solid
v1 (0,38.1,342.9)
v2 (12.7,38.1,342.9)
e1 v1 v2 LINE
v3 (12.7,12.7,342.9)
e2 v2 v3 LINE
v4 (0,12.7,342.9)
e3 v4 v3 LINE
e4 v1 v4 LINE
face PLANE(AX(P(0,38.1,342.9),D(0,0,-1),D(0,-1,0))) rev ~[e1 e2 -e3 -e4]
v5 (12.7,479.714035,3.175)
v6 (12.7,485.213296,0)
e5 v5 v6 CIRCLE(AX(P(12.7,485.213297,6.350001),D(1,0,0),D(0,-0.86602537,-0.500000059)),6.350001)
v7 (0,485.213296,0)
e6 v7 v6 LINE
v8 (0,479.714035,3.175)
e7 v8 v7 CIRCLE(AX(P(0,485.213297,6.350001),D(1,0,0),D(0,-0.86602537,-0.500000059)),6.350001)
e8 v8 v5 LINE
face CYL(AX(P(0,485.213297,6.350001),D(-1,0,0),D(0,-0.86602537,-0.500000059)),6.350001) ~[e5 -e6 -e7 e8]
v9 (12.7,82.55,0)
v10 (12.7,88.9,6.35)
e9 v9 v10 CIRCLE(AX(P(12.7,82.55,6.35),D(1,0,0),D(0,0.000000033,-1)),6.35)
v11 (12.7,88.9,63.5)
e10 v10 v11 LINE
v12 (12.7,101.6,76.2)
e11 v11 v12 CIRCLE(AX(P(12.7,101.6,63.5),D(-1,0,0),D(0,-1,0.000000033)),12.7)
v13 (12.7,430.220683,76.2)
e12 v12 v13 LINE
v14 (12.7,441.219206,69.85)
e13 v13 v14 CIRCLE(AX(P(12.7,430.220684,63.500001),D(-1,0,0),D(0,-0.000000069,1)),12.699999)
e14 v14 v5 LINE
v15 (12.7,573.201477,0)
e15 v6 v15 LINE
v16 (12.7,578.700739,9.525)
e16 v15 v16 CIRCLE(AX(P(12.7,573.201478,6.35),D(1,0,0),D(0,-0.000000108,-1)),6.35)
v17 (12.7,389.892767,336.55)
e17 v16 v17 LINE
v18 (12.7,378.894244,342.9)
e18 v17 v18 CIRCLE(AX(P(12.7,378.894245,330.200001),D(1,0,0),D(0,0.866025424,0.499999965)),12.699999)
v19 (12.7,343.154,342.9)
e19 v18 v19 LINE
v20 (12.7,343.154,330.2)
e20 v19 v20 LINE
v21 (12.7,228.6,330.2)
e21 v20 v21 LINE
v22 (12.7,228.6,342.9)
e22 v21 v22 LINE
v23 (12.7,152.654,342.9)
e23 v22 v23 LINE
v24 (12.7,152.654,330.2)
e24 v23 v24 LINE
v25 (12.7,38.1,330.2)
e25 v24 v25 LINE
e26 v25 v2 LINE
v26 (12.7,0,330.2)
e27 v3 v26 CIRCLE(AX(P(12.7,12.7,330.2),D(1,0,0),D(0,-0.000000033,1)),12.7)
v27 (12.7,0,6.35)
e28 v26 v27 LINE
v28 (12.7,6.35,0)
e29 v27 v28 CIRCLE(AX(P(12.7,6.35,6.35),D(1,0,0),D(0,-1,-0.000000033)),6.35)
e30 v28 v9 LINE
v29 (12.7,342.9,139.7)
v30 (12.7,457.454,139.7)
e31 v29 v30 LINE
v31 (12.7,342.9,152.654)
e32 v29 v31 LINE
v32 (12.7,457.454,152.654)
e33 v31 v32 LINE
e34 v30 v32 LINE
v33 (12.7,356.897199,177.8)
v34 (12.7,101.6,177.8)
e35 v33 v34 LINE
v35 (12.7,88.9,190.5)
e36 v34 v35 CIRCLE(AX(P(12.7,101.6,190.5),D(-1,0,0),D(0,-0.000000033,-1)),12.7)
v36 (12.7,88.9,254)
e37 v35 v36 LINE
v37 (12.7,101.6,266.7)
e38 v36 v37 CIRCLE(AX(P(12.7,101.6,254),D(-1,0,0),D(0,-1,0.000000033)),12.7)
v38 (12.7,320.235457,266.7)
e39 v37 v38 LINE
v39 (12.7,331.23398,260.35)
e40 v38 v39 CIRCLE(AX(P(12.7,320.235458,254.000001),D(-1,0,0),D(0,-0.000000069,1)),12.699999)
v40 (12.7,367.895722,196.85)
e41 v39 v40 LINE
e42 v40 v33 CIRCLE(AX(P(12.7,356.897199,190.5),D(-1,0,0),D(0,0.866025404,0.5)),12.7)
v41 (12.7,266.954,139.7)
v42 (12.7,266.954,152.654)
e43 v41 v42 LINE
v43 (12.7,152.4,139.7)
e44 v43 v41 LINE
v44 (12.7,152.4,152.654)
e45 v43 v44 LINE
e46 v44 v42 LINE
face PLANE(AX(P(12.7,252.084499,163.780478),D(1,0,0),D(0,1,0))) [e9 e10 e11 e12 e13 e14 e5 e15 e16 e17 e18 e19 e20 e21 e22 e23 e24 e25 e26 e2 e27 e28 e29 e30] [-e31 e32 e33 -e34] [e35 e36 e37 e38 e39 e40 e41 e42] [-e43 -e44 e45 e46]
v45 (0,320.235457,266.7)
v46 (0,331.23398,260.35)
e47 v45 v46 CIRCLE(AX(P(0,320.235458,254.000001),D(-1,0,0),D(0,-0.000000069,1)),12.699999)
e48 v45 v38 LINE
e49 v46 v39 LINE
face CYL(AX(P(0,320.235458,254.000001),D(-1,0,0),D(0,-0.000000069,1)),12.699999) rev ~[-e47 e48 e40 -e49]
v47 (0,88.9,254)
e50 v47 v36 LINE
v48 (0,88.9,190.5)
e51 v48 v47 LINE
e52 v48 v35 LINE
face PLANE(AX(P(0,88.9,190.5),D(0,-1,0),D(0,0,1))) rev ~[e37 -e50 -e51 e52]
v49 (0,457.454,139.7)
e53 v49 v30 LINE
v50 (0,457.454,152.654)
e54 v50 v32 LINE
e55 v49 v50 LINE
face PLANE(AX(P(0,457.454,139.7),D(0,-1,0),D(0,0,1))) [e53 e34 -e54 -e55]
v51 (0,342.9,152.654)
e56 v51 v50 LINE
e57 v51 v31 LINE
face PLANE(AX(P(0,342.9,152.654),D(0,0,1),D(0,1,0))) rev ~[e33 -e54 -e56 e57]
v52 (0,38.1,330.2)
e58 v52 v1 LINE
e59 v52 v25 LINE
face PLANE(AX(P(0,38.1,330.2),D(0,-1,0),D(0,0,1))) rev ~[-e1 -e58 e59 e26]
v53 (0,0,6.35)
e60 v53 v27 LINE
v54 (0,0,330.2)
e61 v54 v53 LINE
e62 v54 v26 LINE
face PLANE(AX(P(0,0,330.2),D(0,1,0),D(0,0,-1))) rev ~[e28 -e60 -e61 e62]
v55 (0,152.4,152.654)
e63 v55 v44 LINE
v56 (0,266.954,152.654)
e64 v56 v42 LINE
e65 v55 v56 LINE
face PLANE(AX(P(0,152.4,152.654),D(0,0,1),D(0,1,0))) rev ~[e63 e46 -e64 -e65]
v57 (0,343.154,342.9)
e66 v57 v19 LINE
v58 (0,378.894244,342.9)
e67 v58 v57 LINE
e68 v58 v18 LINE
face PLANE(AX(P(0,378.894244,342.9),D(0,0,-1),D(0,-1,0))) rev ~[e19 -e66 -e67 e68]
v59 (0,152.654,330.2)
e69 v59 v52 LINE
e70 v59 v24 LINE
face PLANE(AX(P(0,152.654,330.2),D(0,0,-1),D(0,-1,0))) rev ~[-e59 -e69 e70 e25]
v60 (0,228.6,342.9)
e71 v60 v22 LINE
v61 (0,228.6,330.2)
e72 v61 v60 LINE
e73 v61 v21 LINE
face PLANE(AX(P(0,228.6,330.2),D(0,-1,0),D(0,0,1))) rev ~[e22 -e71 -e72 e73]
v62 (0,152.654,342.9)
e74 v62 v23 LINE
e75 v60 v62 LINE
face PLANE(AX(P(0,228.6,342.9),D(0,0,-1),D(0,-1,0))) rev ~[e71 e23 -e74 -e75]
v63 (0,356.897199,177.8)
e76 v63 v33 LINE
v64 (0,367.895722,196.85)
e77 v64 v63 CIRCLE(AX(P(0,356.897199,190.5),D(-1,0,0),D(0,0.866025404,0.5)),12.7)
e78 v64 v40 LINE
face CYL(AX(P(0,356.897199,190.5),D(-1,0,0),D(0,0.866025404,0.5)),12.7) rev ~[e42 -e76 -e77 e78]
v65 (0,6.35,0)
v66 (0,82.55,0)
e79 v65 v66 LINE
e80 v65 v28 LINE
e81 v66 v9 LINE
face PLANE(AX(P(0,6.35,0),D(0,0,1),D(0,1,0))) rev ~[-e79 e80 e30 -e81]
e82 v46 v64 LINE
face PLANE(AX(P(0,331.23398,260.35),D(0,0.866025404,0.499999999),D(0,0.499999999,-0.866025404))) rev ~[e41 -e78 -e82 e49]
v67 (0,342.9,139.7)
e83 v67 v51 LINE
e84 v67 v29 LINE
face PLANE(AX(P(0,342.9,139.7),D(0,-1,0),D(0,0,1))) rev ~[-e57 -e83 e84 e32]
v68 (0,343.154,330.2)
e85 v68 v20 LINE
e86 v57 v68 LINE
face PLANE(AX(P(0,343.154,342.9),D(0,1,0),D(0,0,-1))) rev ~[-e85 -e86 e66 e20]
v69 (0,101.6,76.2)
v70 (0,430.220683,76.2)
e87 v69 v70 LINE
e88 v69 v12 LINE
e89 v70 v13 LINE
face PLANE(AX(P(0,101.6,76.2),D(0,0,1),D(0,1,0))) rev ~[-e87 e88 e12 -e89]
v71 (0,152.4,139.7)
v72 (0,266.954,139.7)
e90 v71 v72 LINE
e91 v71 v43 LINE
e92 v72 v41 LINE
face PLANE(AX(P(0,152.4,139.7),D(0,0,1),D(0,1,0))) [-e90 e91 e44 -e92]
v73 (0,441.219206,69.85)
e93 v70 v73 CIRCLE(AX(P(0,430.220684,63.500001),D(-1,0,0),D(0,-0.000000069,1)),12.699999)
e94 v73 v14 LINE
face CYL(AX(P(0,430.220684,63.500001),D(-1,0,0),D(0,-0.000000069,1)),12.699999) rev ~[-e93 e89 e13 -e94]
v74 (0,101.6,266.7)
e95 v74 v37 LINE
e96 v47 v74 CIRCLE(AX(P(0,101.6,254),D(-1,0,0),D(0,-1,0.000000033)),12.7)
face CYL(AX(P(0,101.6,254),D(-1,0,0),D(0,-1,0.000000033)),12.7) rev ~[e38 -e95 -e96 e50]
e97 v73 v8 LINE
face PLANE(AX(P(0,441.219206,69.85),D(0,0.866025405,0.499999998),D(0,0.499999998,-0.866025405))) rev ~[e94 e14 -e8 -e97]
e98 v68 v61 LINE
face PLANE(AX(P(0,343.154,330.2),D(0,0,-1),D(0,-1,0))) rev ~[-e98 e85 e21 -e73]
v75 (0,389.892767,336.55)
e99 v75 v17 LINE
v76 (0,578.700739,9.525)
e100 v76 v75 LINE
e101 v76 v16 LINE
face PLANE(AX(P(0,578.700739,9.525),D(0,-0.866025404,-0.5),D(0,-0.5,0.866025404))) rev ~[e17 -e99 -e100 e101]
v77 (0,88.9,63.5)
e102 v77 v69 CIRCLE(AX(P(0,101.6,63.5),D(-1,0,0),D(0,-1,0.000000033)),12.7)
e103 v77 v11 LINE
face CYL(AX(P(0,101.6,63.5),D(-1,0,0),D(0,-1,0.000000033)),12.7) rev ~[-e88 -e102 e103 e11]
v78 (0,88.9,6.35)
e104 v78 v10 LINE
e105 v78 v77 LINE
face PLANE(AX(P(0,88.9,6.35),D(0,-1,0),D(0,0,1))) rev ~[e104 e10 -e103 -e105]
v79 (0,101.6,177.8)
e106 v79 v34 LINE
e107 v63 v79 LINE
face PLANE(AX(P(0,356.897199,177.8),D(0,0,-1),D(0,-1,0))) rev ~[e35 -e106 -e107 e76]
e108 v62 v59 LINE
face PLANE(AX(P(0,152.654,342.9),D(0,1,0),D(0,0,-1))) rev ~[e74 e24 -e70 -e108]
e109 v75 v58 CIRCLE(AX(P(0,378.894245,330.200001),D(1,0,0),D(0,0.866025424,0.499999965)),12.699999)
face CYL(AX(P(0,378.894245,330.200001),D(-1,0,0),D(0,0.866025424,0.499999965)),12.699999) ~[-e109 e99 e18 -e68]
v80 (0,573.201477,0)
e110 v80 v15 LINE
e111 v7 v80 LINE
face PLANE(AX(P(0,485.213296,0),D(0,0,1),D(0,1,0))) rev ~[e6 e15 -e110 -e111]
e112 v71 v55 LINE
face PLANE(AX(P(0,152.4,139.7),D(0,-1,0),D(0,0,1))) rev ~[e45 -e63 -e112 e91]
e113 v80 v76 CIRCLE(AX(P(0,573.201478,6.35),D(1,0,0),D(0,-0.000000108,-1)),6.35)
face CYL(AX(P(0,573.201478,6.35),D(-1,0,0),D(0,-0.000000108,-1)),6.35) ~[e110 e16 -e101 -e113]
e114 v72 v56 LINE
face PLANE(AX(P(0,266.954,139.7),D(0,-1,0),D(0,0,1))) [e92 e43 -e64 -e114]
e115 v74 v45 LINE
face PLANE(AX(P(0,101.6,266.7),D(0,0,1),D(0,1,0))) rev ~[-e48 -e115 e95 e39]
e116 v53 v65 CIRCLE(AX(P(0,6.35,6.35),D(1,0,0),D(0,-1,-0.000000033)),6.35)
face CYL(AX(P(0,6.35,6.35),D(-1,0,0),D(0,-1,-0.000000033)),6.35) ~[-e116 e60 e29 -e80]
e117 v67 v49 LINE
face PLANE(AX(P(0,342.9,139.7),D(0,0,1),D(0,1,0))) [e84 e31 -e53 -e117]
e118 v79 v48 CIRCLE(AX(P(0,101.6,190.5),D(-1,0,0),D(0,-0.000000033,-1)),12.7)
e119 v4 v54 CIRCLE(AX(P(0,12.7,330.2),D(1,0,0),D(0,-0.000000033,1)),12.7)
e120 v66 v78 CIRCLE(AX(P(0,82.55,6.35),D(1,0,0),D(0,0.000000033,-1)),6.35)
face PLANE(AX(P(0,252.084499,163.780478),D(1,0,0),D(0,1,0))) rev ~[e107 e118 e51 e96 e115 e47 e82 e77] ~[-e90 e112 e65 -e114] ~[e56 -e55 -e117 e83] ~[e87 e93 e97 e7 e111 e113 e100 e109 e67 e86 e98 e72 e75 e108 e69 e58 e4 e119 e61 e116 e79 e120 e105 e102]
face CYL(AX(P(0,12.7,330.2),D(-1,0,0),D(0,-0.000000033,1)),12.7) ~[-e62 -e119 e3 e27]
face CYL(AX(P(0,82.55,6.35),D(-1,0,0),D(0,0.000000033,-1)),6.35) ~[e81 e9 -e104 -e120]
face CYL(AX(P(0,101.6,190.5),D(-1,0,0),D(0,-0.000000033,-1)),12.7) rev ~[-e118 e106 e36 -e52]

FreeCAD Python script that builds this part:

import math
import FreeCAD as App
import Part
import Sketcher
Q = App.Units.Quantity


def add_polygon(sketch, points):
    """Adds a closed chain of lines whose ends are joined by coincident constraints."""
    first, n = sketch.GeometryCount, len(points)
    for a, b in zip(points, points[1:] + points[:1]):
        sketch.addGeometry(Part.LineSegment(App.Vector(*a, 0), App.Vector(*b, 0)), False)
    for i in range(n):
        sketch.addConstraint(Sketcher.Constraint("Coincident", first + i, 2, first + (i + 1) % n, 1))

doc = App.newDocument("Part")
body = doc.addObject("PartDesign::Body", "Body")

sketch1 = body.newObject("Sketcher::SketchObject", "Sketch")
sketch1.AttachmentSupport = (doc.getObject("YZ_Plane"), [""])
sketch1.MapMode = "FlatFace"
sketch1.addGeometry(Part.ArcOfCircle(Part.Circle(App.Vector(6, 6, 0), App.Vector(0, 0, 1), 6), math.radians(-180), math.radians(-90)), False)
sketch1.addGeometry(Part.LineSegment(App.Vector(6, 0, 0), App.Vector(83, 0, 0)), False)
sketch1.addGeometry(Part.ArcOfCircle(Part.Circle(App.Vector(83, 6, 0), App.Vector(0, 0, 1), 6), math.radians(-90), math.radians(0)), False)
sketch1.addGeometry(Part.LineSegment(App.Vector(89, 6, 0), App.Vector(89, 64, 0)), False)
sketch1.addGeometry(Part.ArcOfCircle(Part.Circle(App.Vector(102, 63, 0), App.Vector(0, 0, 1), 13), math.radians(90), math.radians(180)), False)
sketch1.addGeometry(Part.LineSegment(App.Vector(102, 76, 0), App.Vector(430, 76, 0)), False)
sketch1.addGeometry(Part.ArcOfCircle(Part.Circle(App.Vector(430, 64, 0), App.Vector(0, 0, 1), 13), math.radians(30), math.radians(90)), False)
sketch1.addGeometry(Part.LineSegment(App.Vector(441, 70, 0), App.Vector(480, 3, 0)), False)
sketch1.addGeometry(Part.ArcOfCircle(Part.Circle(App.Vector(485, 6, 0), App.Vector(0, 0, 1), 6), math.radians(-150), math.radians(-90)), False)
sketch1.addGeometry(Part.LineSegment(App.Vector(485, 0, 0), App.Vector(573, 0, 0)), False)
sketch1.addGeometry(Part.ArcOfCircle(Part.Circle(App.Vector(573, 6, 0), App.Vector(0, 0, 1), 6), math.radians(-90), math.radians(30)), False)
sketch1.addGeometry(Part.LineSegment(App.Vector(579, 10, 0), App.Vector(390, 337, 0)), False)
sketch1.addGeometry(Part.ArcOfCircle(Part.Circle(App.Vector(379, 330, 0), App.Vector(0, 0, 1), 13), math.radians(30), math.radians(90)), False)
sketch1.addGeometry(Part.LineSegment(App.Vector(379, 343, 0), App.Vector(343, 343, 0)), False)
sketch1.addGeometry(Part.LineSegment(App.Vector(343, 343, 0), App.Vector(343, 330, 0)), False)
sketch1.addGeometry(Part.LineSegment(App.Vector(343, 330, 0), App.Vector(229, 330, 0)), False)
sketch1.addGeometry(Part.LineSegment(App.Vector(229, 330, 0), App.Vector(229, 343, 0)), False)
sketch1.addGeometry(Part.LineSegment(App.Vector(229, 343, 0), App.Vector(153, 343, 0)), False)
sketch1.addGeometry(Part.LineSegment(App.Vector(153, 343, 0), App.Vector(153, 330, 0)), False)
sketch1.addGeometry(Part.LineSegment(App.Vector(153, 330, 0), App.Vector(38, 330, 0)), False)
sketch1.addGeometry(Part.LineSegment(App.Vector(38, 330, 0), App.Vector(38, 343, 0)), False)
sketch1.addGeometry(Part.LineSegment(App.Vector(38, 343, 0), App.Vector(13, 343, 0)), False)
sketch1.addGeometry(Part.ArcOfCircle(Part.Circle(App.Vector(13, 330, 0), App.Vector(0, 0, 1), 13), math.radians(90), math.radians(180)), False)
sketch1.addGeometry(Part.LineSegment(App.Vector(0, 330, 0), App.Vector(0, 6, 0)), False)
add_polygon(sketch1, [(267, 140), (152, 140), (152, 153), (267, 153)])
add_polygon(sketch1, [(457, 140), (343, 140), (343, 153), (457, 153)])
sketch1.addGeometry(Part.ArcOfCircle(Part.Circle(App.Vector(102, 191, 0), App.Vector(0, 0, 1), 13), math.radians(-180), math.radians(-90)), False)
sketch1.addGeometry(Part.LineSegment(App.Vector(89, 190, 0), App.Vector(89, 254, 0)), False)
sketch1.addGeometry(Part.ArcOfCircle(Part.Circle(App.Vector(102, 254, 0), App.Vector(0, 0, 1), 13), math.radians(90), math.radians(180)), False)
sketch1.addGeometry(Part.LineSegment(App.Vector(102, 267, 0), App.Vector(320, 267, 0)), False)
sketch1.addGeometry(Part.ArcOfCircle(Part.Circle(App.Vector(320, 254, 0), App.Vector(0, 0, 1), 13), math.radians(30), math.radians(90)), False)
sketch1.addGeometry(Part.LineSegment(App.Vector(331, 260, 0), App.Vector(368, 197, 0)), False)
sketch1.addGeometry(Part.ArcOfCircle(Part.Circle(App.Vector(357, 190, 0), App.Vector(0, 0, 1), 13), math.radians(-90), math.radians(30)), False)
sketch1.addGeometry(Part.LineSegment(App.Vector(357, 178, 0), App.Vector(102, 178, 0)), False)
sketch1.addConstraint([
    Sketcher.Constraint("Tangent", 0, 2, 1, 1),
    Sketcher.Constraint("Tangent", 1, 2, 2, 1),
    Sketcher.Constraint("Tangent", 2, 2, 3, 1),
    Sketcher.Constraint("Tangent", 3, 2, 4, 2),
    Sketcher.Constraint("Tangent", 4, 1, 5, 1),
    Sketcher.Constraint("Tangent", 5, 2, 6, 2),
    Sketcher.Constraint("Tangent", 6, 1, 7, 1),
    Sketcher.Constraint("Tangent", 7, 2, 8, 1),
    Sketcher.Constraint("Tangent", 8, 2, 9, 1),
    Sketcher.Constraint("Tangent", 9, 2, 10, 1),
    Sketcher.Constraint("Tangent", 10, 2, 11, 1),
    Sketcher.Constraint("Tangent", 11, 2, 12, 1),
    Sketcher.Constraint("Tangent", 12, 2, 13, 1),
    Sketcher.Constraint("Coincident", 13, 2, 14, 1),
    Sketcher.Constraint("Coincident", 14, 2, 15, 1),
    Sketcher.Constraint("Coincident", 15, 2, 16, 1),
    Sketcher.Constraint("Coincident", 16, 2, 17, 1),
    Sketcher.Constraint("Coincident", 17, 2, 18, 1),
    Sketcher.Constraint("Coincident", 18, 2, 19, 1),
    Sketcher.Constraint("Coincident", 19, 2, 20, 1),
    Sketcher.Constraint("Coincident", 20, 2, 21, 1),
    Sketcher.Constraint("Tangent", 21, 2, 22, 1),
    Sketcher.Constraint("Tangent", 22, 2, 23, 1),
    Sketcher.Constraint("Tangent", 23, 2, 0, 1),
    Sketcher.Constraint("Tangent", 32, 1, 33, 1),
    Sketcher.Constraint("Tangent", 33, 2, 34, 2),
    Sketcher.Constraint("Tangent", 34, 1, 35, 1),
    Sketcher.Constraint("Tangent", 35, 2, 36, 2),
    Sketcher.Constraint("Tangent", 36, 1, 37, 1),
    Sketcher.Constraint("Tangent", 37, 2, 38, 2),
    Sketcher.Constraint("Tangent", 38, 1, 39, 1),
    Sketcher.Constraint("Tangent", 39, 2, 32, 2),
    Sketcher.Constraint("Horizontal", 1),
    Sketcher.Constraint("Vertical", 3),
    Sketcher.Constraint("Horizontal", 5),
    Sketcher.Constraint("Horizontal", 9),
    Sketcher.Constraint("Horizontal", 13),
    Sketcher.Constraint("Vertical", 14),
    Sketcher.Constraint("Horizontal", 15),
    Sketcher.Constraint("Vertical", 16),
    Sketcher.Constraint("Horizontal", 17),
    Sketcher.Constraint("Vertical", 18),
    Sketcher.Constraint("Horizontal", 19),
    Sketcher.Constraint("Vertical", 20),
    Sketcher.Constraint("Horizontal", 21),
    Sketcher.Constraint("Vertical", 23),
    Sketcher.Constraint("Horizontal", 24),
    Sketcher.Constraint("Vertical", 25),
    Sketcher.Constraint("Horizontal", 26),
    Sketcher.Constraint("Vertical", 27),
    Sketcher.Constraint("Horizontal", 28),
    Sketcher.Constraint("Vertical", 29),
    Sketcher.Constraint("Horizontal", 30),
    Sketcher.Constraint("Vertical", 31),
    Sketcher.Constraint("Vertical", 33),
    Sketcher.Constraint("Horizontal", 35),
    Sketcher.Constraint("Horizontal", 39),
    Sketcher.Constraint("Equal", 0, 2),
    Sketcher.Constraint("Equal", 4, 6),
    Sketcher.Constraint("Equal", 2, 8),
    Sketcher.Constraint("Equal", 8, 10),
    Sketcher.Constraint("Equal", 6, 12),
    Sketcher.Constraint("Equal", 12, 22),
    Sketcher.Constraint("Equal", 22, 32),
    Sketcher.Constraint("Equal", 32, 34),
    Sketcher.Constraint("Equal", 34, 36),
    Sketcher.Constraint("Equal", 36, 38),
    Sketcher.Constraint("PointOnObject", 0, 2, -1),
    Sketcher.Constraint("PointOnObject", 8, 2, -1),
    Sketcher.Constraint("PointOnObject", 22, 2, -2),
    Sketcher.Constraint("Parallel", 7, 11),
    Sketcher.Constraint("Parallel", 11, 37),
    Sketcher.Constraint("Horizontal", 12, 3, 22, 3),
    Sketcher.Constraint("Horizontal", 22, 3, 14, 2),
    Sketcher.Constraint("Horizontal", 13, 2, 16, 2),
    Sketcher.Constraint("Horizontal", 15, 2, 18, 2),
    Sketcher.Constraint("Horizontal", 27, 2, 28, 2),
    Sketcher.Constraint("Horizontal", 26, 2, 29, 2),
    Sketcher.Constraint("Vertical", 4, 3, 32, 3),
    Sketcher.Constraint("Equal", 15, 19),
    Sketcher.Constraint("Equal", 19, 24),
    Sketcher.Constraint("Equal", 26, 28),
    Sketcher.Constraint("Radius", 4, Q("0.5 in")),
    Sketcher.Constraint("DistanceX", 1, 1, 1, 2, Q("3 in")),
    Sketcher.Constraint("DistanceX", 21, 2, 21, 1, Q("1 in")),
    Sketcher.Constraint("Radius", 0, Q("0.25 in")),
    Sketcher.Constraint("DistanceY", 33, 1, 33, 2, Q("2.5 in")),
    Sketcher.Constraint("DistanceY", -1, 1, 12, 3, Q("13 in")),
    Sketcher.Constraint("DistanceY", -1, 1, 34, 3, Q("10 in")),
    Sketcher.Constraint("DistanceY", -1, 1, 4, 1, Q("3 in")),
    Sketcher.Constraint("DistanceX", -1, 1, 15, 2, Q("9 in")),
    Sketcher.Constraint("DistanceX", -1, 1, 24, 2, Q("6 in")),
    Sketcher.Constraint("Angle", 7, Q("-60 deg")),
    Sketcher.Constraint("DistanceY", 24, 2, 32, 3, Q("2 in")),
    Sketcher.Constraint("DistanceX", 15, 2, 15, 1, Q("4.51 in")),
    Sketcher.Constraint("DistanceY", 25, 1, 25, 2, Q("0.51 in")),
    Sketcher.Constraint("DistanceX", -1, 1, 28, 2, Q("13.5 in")),
    Sketcher.Constraint("DistanceX", 39, 2, 39, 1, Q("255.297199 mm")),
    Sketcher.Constraint("DistanceX", 9, 1, 9, 2, Q("87.988181 mm")),
    Sketcher.Constraint("DistanceX", 5, 1, 5, 2, Q("328.620683 mm")),
])
pad1 = body.newObject("PartDesign::Pad", "Pad")
pad1.Profile = sketch1
pad1.Length = Q("0.5 in")

doc.recompute()
